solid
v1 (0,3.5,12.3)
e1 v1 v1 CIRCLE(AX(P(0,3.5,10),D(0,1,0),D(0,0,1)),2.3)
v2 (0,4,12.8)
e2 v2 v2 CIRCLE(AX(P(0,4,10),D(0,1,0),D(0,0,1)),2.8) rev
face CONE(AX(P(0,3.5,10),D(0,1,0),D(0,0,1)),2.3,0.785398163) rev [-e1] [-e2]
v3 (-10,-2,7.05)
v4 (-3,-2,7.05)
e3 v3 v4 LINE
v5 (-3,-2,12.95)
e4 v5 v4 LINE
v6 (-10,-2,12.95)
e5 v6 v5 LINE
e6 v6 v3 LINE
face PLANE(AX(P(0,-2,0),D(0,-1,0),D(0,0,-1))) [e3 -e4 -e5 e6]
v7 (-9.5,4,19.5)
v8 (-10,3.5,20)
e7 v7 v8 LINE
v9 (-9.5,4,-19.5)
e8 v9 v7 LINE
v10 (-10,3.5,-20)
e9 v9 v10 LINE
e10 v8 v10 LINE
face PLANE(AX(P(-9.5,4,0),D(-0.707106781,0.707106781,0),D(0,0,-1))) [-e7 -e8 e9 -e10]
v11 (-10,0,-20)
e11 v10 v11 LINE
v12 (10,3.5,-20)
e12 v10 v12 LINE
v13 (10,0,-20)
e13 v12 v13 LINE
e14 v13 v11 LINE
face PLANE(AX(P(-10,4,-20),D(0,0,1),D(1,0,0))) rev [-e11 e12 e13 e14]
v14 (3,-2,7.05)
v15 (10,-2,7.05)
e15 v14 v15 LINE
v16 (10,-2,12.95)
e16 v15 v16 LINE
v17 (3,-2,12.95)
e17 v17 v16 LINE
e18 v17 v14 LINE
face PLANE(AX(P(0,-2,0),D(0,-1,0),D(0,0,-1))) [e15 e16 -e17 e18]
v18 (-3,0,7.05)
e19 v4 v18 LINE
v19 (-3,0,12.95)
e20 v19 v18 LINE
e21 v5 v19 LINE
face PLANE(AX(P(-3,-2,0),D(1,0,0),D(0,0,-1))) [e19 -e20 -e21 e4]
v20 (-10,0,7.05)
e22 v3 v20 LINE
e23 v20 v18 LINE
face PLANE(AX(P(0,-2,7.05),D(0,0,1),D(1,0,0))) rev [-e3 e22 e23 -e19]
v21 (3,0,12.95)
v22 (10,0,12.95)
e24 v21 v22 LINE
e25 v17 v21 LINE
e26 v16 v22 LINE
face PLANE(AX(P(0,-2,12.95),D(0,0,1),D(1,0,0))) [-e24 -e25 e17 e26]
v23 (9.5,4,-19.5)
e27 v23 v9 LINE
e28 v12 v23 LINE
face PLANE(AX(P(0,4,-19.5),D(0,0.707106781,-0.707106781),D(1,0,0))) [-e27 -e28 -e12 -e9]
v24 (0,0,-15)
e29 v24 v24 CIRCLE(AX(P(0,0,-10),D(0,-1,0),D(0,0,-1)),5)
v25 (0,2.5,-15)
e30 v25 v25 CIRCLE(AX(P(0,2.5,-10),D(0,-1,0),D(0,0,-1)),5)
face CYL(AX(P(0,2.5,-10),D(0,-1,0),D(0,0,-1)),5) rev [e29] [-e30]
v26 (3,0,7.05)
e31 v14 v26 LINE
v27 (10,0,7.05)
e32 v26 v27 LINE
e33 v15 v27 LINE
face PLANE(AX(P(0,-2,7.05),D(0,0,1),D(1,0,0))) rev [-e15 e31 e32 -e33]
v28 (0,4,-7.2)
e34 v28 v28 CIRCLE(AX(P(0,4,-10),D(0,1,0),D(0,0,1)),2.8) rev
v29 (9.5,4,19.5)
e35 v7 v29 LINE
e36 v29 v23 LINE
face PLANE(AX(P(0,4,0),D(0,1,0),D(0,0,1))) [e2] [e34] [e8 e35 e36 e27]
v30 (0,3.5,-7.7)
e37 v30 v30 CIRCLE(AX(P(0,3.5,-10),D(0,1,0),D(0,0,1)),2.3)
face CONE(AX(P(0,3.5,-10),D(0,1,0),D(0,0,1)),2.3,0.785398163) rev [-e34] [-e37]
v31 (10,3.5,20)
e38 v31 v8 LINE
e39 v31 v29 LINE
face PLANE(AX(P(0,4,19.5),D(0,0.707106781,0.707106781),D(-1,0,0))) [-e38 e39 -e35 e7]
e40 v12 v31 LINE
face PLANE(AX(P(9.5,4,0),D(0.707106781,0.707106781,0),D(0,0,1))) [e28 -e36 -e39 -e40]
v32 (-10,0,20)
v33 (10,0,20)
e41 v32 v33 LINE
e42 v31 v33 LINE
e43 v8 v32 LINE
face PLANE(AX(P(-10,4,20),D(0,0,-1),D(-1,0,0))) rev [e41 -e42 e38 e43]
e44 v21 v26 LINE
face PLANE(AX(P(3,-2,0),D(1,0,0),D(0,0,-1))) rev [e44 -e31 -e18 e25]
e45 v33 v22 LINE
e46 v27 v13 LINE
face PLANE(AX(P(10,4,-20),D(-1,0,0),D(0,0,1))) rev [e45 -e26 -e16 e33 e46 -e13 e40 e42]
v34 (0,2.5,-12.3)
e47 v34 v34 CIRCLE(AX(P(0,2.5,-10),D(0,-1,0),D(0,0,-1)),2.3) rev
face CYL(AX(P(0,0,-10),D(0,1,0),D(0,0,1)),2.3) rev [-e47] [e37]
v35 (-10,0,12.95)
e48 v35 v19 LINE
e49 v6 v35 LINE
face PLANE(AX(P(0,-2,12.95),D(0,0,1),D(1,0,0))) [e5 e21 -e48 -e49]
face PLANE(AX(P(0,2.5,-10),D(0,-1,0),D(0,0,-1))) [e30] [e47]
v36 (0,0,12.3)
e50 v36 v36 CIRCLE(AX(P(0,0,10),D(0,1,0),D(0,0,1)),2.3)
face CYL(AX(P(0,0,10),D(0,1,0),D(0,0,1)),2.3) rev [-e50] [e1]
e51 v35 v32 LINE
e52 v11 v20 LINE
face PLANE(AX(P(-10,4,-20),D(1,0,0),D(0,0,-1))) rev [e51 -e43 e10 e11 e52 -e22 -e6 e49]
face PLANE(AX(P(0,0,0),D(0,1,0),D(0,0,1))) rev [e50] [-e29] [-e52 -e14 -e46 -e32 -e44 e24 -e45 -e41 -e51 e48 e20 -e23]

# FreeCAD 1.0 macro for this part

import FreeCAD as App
import Part
import Sketcher

V = App.Vector
Q = App.Units.Quantity


def edges_at(feature, points):
    """Names of the edges that pass closest to the given points."""
    edges = feature.Shape.Edges
    near = lambda p: min(range(len(edges)), key=lambda i: edges[i].distToShape(Part.Vertex(*p))[0])
    return sorted({f"Edge{near(p) + 1}" for p in points})

doc = App.newDocument("Part")
params = doc.addObject("Spreadsheet::Sheet", "Params")
for row, (alias, value) in enumerate([
    ("sketch1_width", "20 mm"),
    ("sketch1_height", "40 mm"),
    ("pad1_length", "4 mm"),
    ("sketch2_diameter", "4.6 mm"),
    ("sketch3_width", "7 mm"),
    ("sketch3_height", "5.9 mm"),
    ("pad2_length", "2 mm"),
    ("chamfer_size", "0.5 mm"),
    ("sketch4_diameter", "10 mm"),
    ("pocket2_length", "2.5 mm"),
], start=1):
    params.set(f"A{row}", alias)
    params.set(f"B{row}", "=" + value)
    params.setAlias(f"B{row}", alias)

body = doc.addObject("PartDesign::Body", "Body")

# Sketch on XZ plane
sketch1 = body.newObject("Sketcher::SketchObject", "Sketch")
sketch1.AttachmentSupport = (doc.getObject("XZ_Plane"), [""])
sketch1.MapMode = "FlatFace"
sketch1.addGeometry(Part.LineSegment(V(-10, -20, 0), V(-10, 20, 0)), False)
sketch1.addGeometry(Part.LineSegment(V(-10, 20, 0), V(10, 20, 0)), False)
sketch1.addGeometry(Part.LineSegment(V(10, 20, 0), V(10, -20, 0)), False)
sketch1.addGeometry(Part.LineSegment(V(10, -20, 0), V(-10, -20, 0)), False)
sketch1.addConstraint(Sketcher.Constraint("Coincident", 0, 2, 1, 1))
sketch1.addConstraint(Sketcher.Constraint("Coincident", 1, 2, 2, 1))
sketch1.addConstraint(Sketcher.Constraint("Coincident", 2, 2, 3, 1))
sketch1.addConstraint(Sketcher.Constraint("Coincident", 3, 2, 0, 1))
sketch1.addConstraint(Sketcher.Constraint("Vertical", 0))
sketch1.addConstraint(Sketcher.Constraint("Horizontal", 1))
sketch1.addConstraint(Sketcher.Constraint("Vertical", 2))
sketch1.addConstraint(Sketcher.Constraint("Horizontal", 3))
sketch1.addConstraint(Sketcher.Constraint("Symmetric", 0, 2, 2, 2, -1, 1))
sketch1.addConstraint(Sketcher.Constraint("DistanceX", 1, 1, 1, 2, Q("20 mm")))
sketch1.addConstraint(Sketcher.Constraint("DistanceY", 0, 1, 0, 2, Q("40 mm")))
sketch1.setExpression("Constraints[9]", "Params.sketch1_width")
sketch1.setExpression("Constraints[10]", "Params.sketch1_height")
pad1 = body.newObject("PartDesign::Pad", "Pad")
pad1.Profile = sketch1
pad1.setExpression("Length", "Params.pad1_length")
pad1.Reversed = True

# Sketch on XZ plane
sketch2 = body.newObject("Sketcher::SketchObject", "Sketch001")
sketch2.AttachmentSupport = (doc.getObject("XZ_Plane"), [""])
sketch2.MapMode = "FlatFace"
sketch2.AttachmentOffset = App.Placement(V(0, 0, -4), App.Rotation())
sketch2.addGeometry(Part.Circle(V(0, -10, 0), V(0, 0, 1), 2.3), False)
sketch2.addGeometry(Part.Circle(V(0, 10, 0), V(0, 0, 1), 2.3), False)
sketch2.addConstraint(Sketcher.Constraint("Equal", 0, 1))
sketch2.addConstraint(Sketcher.Constraint("Symmetric", 0, 3, 1, 3, -1, 1))
sketch2.addConstraint(Sketcher.Constraint("PointOnObject", 0, 3, -2))
sketch2.addConstraint(Sketcher.Constraint("Diameter", 0, Q("4.6 mm")))
sketch2.addConstraint(Sketcher.Constraint("DistanceY", 0, 3, -1, 1, Q("10 mm")))
sketch2.setExpression("Constraints[3]", "Params.sketch2_diameter")
pocket1 = body.newObject("PartDesign::Pocket", "Pocket")
pocket1.Profile = sketch2
pocket1.Type = "ThroughAll"
pocket1.Midplane = True

# Sketch on XZ plane
sketch3 = body.newObject("Sketcher::SketchObject", "Sketch002")
sketch3.AttachmentSupport = (doc.getObject("XZ_Plane"), [""])
sketch3.MapMode = "FlatFace"
sketch3.addGeometry(Part.LineSegment(V(3, 13, 0), V(3, 7, 0)), False)
sketch3.addGeometry(Part.LineSegment(V(3, 7, 0), V(10, 7, 0)), False)
sketch3.addGeometry(Part.LineSegment(V(10, 7, 0), V(10, 13, 0)), False)
sketch3.addGeometry(Part.LineSegment(V(10, 13, 0), V(3, 13, 0)), False)
sketch3.addGeometry(Part.LineSegment(V(-10, 13, 0), V(-10, 7, 0)), False)
sketch3.addGeometry(Part.LineSegment(V(-10, 7, 0), V(-3, 7, 0)), False)
sketch3.addGeometry(Part.LineSegment(V(-3, 7, 0), V(-3, 13, 0)), False)
sketch3.addGeometry(Part.LineSegment(V(-3, 13, 0), V(-10, 13, 0)), False)
sketch3.addConstraint(Sketcher.Constraint("Coincident", 0, 2, 1, 1))
sketch3.addConstraint(Sketcher.Constraint("Coincident", 1, 2, 2, 1))
sketch3.addConstraint(Sketcher.Constraint("Coincident", 2, 2, 3, 1))
sketch3.addConstraint(Sketcher.Constraint("Coincident", 3, 2, 0, 1))
sketch3.addConstraint(Sketcher.Constraint("Coincident", 4, 2, 5, 1))
sketch3.addConstraint(Sketcher.Constraint("Coincident", 5, 2, 6, 1))
sketch3.addConstraint(Sketcher.Constraint("Coincident", 6, 2, 7, 1))
sketch3.addConstraint(Sketcher.Constraint("Coincident", 7, 2, 4, 1))
sketch3.addConstraint(Sketcher.Constraint("Vertical", 0))
sketch3.addConstraint(Sketcher.Constraint("Horizontal", 1))
sketch3.addConstraint(Sketcher.Constraint("Vertical", 2))
sketch3.addConstraint(Sketcher.Constraint("Horizontal", 3))
sketch3.addConstraint(Sketcher.Constraint("Vertical", 4))
sketch3.addConstraint(Sketcher.Constraint("Horizontal", 5))
sketch3.addConstraint(Sketcher.Constraint("Vertical", 6))
sketch3.addConstraint(Sketcher.Constraint("Horizontal", 7))
sketch3.addConstraint(Sketcher.Constraint("Symmetric", 1, 2, 4, 2, -2))
sketch3.addConstraint(Sketcher.Constraint("Symmetric", 3, 2, 6, 2, -2))
sketch3.addConstraint(Sketcher.Constraint("DistanceX", 1, 1, 1, 2, Q("7 mm")))
sketch3.addConstraint(Sketcher.Constraint("DistanceY", 0, 2, 0, 1, Q("5.9 mm")))
sketch3.addConstraint(Sketcher.Constraint("DistanceX", -1, 1, 0, 2, Q("3 mm")))
sketch3.addConstraint(Sketcher.Constraint("DistanceY", -1, 1, 0, 2, Q("7.05 mm")))
sketch3.setExpression("Constraints[18]", "Params.sketch3_width")
sketch3.setExpression("Constraints[19]", "Params.sketch3_height")
pad2 = body.newObject("PartDesign::Pad", "Pad001")
pad2.Profile = sketch3
pad2.setExpression("Length", "Params.pad2_length")
doc.recompute()

chamfer = body.newObject("PartDesign::Chamfer", "Chamfer")
chamfer.Base = (pad2, edges_at(pad2, [
    (-10, 4, 0),
    (0, 4, 20),
    (-2.3, 4, -10),
    (-2.3, 4, 10),
    (10, 4, 0),
    (0, 4, -20),
]))
chamfer.setExpression("Size", "Params.chamfer_size")

# Sketch on XZ plane
sketch4 = body.newObject("Sketcher::SketchObject", "Sketch003")
sketch4.AttachmentSupport = (doc.getObject("XZ_Plane"), [""])
sketch4.MapMode = "FlatFace"
sketch4.addGeometry(Part.Circle(V(0, -10, 0), V(0, 0, 1), 5), False)
sketch4.addConstraint(Sketcher.Constraint("PointOnObject", 0, 3, -2))
sketch4.addConstraint(Sketcher.Constraint("Diameter", 0, Q("10 mm")))
sketch4.addConstraint(Sketcher.Constraint("DistanceY", 0, 3, -1, 1, Q("10 mm")))
sketch4.setExpression("Constraints[1]", "Params.sketch4_diameter")
pocket2 = body.newObject("PartDesign::Pocket", "Pocket001")
pocket2.Profile = sketch4
pocket2.setExpression("Length", "Params.pocket2_length")

doc.recompute()
